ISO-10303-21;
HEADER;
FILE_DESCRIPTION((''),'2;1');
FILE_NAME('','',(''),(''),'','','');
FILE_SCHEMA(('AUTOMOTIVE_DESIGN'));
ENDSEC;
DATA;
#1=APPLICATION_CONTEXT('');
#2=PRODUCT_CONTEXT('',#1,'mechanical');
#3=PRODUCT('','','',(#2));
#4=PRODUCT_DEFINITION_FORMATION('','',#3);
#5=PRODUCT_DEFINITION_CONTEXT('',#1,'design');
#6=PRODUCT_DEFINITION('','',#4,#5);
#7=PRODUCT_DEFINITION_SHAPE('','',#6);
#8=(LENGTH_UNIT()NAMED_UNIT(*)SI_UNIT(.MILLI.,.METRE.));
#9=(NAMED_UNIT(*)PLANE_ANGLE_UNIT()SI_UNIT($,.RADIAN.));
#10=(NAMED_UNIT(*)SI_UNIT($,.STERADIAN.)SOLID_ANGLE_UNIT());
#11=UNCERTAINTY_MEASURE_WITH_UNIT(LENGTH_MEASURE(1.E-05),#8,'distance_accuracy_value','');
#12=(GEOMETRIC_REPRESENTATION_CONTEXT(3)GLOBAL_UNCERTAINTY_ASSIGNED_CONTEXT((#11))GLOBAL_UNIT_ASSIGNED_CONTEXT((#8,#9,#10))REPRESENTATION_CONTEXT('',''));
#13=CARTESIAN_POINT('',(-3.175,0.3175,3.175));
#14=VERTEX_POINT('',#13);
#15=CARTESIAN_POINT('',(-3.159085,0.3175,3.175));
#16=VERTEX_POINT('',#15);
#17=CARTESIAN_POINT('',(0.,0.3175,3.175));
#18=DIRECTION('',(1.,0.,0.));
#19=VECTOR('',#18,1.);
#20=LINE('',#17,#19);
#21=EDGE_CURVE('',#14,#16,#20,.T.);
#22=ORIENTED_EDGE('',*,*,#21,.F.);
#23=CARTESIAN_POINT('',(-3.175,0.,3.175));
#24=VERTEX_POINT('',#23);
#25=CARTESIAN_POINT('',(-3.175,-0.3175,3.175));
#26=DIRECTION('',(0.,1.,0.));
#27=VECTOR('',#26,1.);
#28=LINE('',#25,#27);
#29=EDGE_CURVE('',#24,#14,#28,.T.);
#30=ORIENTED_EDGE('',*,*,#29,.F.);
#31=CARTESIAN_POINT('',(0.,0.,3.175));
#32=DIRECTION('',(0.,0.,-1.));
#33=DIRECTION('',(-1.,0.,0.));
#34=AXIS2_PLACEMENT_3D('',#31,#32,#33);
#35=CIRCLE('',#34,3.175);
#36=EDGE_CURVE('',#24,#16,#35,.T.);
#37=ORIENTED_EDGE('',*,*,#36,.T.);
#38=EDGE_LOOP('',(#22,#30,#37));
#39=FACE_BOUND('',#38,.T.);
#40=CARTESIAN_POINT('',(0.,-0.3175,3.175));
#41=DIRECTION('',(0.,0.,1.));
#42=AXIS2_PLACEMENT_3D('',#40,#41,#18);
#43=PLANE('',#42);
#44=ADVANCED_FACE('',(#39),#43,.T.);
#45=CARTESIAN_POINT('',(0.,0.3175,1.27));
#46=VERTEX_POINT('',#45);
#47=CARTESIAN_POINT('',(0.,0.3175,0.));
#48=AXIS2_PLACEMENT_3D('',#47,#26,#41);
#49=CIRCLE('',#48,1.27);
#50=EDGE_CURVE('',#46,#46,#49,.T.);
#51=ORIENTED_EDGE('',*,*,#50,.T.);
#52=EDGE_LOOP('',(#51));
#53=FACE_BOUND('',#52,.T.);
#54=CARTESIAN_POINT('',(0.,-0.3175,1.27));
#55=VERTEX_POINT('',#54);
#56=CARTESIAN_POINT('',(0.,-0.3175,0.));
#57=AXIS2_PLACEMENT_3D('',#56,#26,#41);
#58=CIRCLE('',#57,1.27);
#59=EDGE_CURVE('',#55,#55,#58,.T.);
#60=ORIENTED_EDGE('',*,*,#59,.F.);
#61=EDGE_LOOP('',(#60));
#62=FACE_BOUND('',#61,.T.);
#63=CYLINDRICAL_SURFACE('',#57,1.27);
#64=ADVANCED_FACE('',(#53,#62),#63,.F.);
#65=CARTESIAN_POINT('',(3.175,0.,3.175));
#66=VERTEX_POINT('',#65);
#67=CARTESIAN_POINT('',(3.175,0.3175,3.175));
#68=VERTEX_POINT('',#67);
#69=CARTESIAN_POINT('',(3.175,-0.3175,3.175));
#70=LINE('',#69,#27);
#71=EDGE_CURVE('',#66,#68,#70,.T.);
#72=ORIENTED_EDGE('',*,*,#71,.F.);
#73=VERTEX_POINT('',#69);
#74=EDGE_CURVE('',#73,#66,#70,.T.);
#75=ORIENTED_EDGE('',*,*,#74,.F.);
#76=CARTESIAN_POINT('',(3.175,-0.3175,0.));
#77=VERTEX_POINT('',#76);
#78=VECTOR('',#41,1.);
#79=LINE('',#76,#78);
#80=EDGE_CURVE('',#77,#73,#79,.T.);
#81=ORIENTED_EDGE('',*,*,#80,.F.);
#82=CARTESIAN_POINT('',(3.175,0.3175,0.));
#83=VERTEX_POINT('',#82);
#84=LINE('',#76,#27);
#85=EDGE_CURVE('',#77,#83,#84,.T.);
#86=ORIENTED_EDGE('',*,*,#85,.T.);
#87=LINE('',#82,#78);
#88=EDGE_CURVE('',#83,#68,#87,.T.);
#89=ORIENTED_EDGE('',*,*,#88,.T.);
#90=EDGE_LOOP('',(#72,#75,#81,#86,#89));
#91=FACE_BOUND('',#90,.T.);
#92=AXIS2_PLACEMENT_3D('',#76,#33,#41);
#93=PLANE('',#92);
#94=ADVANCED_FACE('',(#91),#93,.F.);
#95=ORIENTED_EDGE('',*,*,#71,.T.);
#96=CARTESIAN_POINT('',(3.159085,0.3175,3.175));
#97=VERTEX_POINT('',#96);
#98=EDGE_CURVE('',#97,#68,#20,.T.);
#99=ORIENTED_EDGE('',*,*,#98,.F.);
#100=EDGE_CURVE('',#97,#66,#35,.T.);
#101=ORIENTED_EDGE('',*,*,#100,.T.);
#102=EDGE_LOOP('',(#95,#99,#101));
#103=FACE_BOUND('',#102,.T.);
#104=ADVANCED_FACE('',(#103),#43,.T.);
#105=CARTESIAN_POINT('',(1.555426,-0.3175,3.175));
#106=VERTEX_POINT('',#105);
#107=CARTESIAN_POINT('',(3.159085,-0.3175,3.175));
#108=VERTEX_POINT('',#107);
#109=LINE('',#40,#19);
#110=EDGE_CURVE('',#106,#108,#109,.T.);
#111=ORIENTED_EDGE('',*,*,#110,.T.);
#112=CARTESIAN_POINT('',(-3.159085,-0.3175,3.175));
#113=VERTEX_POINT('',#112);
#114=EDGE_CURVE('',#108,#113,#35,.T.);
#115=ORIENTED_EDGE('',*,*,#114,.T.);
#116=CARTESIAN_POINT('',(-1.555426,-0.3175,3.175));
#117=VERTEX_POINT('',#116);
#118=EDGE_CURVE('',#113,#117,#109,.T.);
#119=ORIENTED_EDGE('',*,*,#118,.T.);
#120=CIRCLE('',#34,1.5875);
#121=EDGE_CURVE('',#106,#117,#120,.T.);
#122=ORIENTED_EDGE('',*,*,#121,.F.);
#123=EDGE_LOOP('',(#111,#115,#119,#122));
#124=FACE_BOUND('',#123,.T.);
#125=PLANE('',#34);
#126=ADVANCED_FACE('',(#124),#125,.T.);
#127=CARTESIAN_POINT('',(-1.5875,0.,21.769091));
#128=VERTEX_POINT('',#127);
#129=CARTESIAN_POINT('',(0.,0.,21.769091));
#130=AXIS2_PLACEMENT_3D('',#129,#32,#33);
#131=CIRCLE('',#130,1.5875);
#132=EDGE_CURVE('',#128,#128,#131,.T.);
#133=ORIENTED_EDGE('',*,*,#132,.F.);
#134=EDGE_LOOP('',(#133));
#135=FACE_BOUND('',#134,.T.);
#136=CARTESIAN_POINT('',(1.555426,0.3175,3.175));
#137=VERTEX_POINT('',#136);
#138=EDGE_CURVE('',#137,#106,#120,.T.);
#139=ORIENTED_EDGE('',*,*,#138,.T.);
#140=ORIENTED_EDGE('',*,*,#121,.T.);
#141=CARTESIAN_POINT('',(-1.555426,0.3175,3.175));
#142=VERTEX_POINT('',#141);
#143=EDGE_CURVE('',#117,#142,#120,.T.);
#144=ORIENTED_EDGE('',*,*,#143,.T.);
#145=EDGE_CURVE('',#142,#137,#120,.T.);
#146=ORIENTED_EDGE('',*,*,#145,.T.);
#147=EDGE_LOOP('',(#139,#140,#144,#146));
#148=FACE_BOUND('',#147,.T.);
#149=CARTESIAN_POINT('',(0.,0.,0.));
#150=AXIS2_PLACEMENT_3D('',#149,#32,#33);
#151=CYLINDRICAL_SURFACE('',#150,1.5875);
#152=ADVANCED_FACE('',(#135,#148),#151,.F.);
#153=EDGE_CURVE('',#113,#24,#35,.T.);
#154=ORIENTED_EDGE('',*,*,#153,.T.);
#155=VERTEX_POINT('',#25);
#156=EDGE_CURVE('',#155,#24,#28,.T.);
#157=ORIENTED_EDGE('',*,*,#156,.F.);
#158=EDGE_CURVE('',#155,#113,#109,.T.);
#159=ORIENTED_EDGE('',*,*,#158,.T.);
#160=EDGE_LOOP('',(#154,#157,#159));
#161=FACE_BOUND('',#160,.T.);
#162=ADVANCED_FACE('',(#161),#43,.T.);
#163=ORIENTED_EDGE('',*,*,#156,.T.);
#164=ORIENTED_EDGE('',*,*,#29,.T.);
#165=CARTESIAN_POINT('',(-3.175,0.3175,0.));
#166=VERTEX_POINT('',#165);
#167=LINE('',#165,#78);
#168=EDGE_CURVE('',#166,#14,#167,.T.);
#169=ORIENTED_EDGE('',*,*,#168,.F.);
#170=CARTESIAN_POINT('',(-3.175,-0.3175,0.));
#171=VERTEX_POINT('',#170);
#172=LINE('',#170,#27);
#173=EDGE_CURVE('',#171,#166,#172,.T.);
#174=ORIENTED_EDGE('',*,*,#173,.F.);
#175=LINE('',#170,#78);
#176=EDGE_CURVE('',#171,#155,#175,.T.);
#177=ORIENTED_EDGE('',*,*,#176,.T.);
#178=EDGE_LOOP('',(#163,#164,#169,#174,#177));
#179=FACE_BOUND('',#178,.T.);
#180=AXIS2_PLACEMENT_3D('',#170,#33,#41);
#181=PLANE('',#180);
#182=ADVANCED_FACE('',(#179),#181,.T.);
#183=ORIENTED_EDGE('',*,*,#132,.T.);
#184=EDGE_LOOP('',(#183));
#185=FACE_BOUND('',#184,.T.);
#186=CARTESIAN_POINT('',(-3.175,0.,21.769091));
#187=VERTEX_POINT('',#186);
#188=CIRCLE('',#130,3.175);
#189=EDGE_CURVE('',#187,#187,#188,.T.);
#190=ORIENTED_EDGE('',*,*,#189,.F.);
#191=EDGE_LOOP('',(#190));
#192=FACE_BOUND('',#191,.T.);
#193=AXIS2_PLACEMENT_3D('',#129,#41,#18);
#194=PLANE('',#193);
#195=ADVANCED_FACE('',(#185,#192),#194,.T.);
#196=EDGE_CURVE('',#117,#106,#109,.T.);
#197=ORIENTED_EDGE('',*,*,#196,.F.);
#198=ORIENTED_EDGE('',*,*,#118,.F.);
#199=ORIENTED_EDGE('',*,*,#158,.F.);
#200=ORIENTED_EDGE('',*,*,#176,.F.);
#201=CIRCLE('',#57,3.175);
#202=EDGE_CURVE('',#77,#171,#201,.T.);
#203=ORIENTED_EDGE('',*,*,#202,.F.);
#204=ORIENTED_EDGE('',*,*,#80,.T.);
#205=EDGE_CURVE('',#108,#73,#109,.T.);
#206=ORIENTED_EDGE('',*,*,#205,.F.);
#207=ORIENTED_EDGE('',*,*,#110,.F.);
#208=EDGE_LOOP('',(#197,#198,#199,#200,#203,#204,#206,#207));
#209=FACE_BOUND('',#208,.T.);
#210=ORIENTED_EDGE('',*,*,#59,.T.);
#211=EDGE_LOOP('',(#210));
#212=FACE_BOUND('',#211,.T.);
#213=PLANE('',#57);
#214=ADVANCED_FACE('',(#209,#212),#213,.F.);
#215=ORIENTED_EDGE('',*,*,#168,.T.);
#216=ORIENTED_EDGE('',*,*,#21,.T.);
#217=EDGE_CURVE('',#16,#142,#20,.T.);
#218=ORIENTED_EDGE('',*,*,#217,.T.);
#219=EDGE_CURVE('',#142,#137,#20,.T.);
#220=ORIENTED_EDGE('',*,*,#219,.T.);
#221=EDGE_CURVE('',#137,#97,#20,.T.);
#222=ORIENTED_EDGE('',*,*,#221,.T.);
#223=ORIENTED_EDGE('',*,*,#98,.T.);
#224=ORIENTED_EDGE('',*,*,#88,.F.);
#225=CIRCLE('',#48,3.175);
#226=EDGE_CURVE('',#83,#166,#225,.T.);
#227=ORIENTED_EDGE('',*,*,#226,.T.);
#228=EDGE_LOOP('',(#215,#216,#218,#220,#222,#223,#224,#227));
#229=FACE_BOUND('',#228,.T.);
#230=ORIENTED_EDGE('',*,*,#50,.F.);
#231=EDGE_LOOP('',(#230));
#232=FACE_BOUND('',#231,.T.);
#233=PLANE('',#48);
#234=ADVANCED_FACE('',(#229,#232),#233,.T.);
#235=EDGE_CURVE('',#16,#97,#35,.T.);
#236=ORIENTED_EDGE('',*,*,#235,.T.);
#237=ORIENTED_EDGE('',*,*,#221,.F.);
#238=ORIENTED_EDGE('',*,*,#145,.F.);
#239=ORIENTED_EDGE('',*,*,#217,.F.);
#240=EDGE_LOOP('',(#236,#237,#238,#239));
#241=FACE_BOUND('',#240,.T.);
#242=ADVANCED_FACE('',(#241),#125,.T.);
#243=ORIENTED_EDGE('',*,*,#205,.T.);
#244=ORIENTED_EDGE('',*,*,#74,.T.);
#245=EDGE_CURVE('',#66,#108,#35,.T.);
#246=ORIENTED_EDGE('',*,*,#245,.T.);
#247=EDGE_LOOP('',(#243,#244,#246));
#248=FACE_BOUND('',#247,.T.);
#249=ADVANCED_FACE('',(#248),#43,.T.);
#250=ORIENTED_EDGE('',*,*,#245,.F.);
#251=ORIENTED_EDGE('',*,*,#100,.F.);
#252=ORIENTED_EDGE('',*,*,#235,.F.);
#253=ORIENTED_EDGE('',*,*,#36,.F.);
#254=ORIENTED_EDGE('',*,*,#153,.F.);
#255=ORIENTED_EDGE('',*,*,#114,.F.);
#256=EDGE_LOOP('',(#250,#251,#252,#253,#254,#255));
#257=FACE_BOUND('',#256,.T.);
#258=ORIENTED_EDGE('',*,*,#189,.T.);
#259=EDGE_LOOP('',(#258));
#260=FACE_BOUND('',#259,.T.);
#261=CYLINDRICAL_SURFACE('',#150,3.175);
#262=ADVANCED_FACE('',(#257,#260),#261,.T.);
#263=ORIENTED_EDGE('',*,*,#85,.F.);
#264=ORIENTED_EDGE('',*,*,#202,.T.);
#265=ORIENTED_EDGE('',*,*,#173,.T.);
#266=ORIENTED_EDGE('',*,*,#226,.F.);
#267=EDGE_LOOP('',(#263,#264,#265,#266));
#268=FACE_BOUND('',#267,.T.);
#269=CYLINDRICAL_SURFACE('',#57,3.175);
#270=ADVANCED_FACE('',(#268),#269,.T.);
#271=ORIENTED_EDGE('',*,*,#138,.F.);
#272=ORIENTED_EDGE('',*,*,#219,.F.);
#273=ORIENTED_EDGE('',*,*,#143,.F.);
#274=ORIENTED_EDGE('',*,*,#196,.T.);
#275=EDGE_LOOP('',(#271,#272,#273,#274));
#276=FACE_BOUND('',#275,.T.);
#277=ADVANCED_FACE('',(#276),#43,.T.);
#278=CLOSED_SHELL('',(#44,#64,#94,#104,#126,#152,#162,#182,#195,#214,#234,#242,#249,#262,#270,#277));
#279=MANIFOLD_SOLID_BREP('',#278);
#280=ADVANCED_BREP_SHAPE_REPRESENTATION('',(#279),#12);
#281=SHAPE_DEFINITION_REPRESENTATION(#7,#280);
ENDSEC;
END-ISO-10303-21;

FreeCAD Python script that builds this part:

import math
import FreeCAD as App
import Part
import Sketcher
Q = App.Units.Quantity


def add_polygon(sketch, points):
    """Adds a closed chain of lines whose ends are joined by coincident constraints."""
    first, n = sketch.GeometryCount, len(points)
    for a, b in zip(points, points[1:] + points[:1]):
        sketch.addGeometry(Part.LineSegment(App.Vector(*a, 0), App.Vector(*b, 0)), False)
    for i in range(n):
        sketch.addConstraint(Sketcher.Constraint("Coincident", first + i, 2, first + (i + 1) % n, 1))

doc = App.newDocument("Part")
body = doc.addObject("PartDesign::Body", "Body")

sketch1 = doc.addObject("Sketcher::SketchObject", "Sketch")
body.addObject(sketch1)
sketch1.AttachmentSupport = (doc.XZ_Plane, [""])
sketch1.MapMode = "FlatFace"
add_polygon(sketch1, [(1.5875, 3.175), (1.5875, 21.769091), (3.175, 21.769091), (3.175, 3.175)])
sketch1.addConstraint([
    Sketcher.Constraint("Vertical", 0),
    Sketcher.Constraint("Horizontal", 1),
    Sketcher.Constraint("Vertical", 2),
    Sketcher.Constraint("Horizontal", 3),
    Sketcher.Constraint("DistanceX", 1, 1, 1, 2, Q("0.0625 in")),
    Sketcher.Constraint("DistanceX", -1, 1, 0, 2, Q("0.0625 in")),
    Sketcher.Constraint("DistanceY", -1, 1, 2, 2, Q("0.125 in")),
    Sketcher.Constraint("DistanceY", 0, 1, 0, 2, Q("18.594091 mm")),
])
revolution = doc.addObject("PartDesign::Revolution", "Revolution")
body.addObject(revolution)
revolution.Profile = sketch1
revolution.ReferenceAxis = (sketch1, ["V_Axis"])
revolution.Angle = 360

sketch2 = doc.addObject("Sketcher::SketchObject", "Sketch001")
body.addObject(sketch2)
sketch2.AttachmentSupport = (doc.XZ_Plane, [""])
sketch2.MapMode = "FlatFace"
sketch2.addGeometry([
    Part.ArcOfCircle(Part.Circle(App.Vector(0, 0, 0), App.Vector(0, 0, 1), 3.175), math.radians(-60), math.radians(0)),
    Part.ArcOfCircle(Part.Circle(App.Vector(0, 0, 0), App.Vector(0, 0, 1), 3.175), math.radians(-90), math.radians(-60)),
    Part.ArcOfCircle(Part.Circle(App.Vector(0, 0, 0), App.Vector(0, 0, 1), 3.175), math.radians(-120), math.radians(-90)),
    Part.ArcOfCircle(Part.Circle(App.Vector(0, 0, 0), App.Vector(0, 0, 1), 3.175), math.radians(180), math.radians(240)),
    Part.LineSegment(App.Vector(-3.175, 0, 0), App.Vector(-3.175, 3.175, 0)),
    Part.LineSegment(App.Vector(-3.175, 3.175, 0), App.Vector(3.175, 3.175, 0)),
    Part.LineSegment(App.Vector(3.175, 3.175, 0), App.Vector(3.175, 0, 0)),
    Part.ArcOfCircle(Part.Circle(App.Vector(0, 0, 0), App.Vector(0, 0, 1), 1.27), math.radians(-90), math.radians(0)),
    Part.ArcOfCircle(Part.Circle(App.Vector(0, 0, 0), App.Vector(0, 0, 1), 1.27), math.radians(0), math.radians(90)),
    Part.ArcOfCircle(Part.Circle(App.Vector(0, 0, 0), App.Vector(0, 0, 1), 1.27), math.radians(90), math.radians(270)),
], False)
sketch2.addConstraint([
    Sketcher.Constraint("Tangent", 0, 1, 1, 2),
    Sketcher.Constraint("Tangent", 1, 1, 2, 2),
    Sketcher.Constraint("Tangent", 2, 1, 3, 2),
    Sketcher.Constraint("Tangent", 3, 1, 4, 1),
    Sketcher.Constraint("Coincident", 4, 2, 5, 1),
    Sketcher.Constraint("Coincident", 5, 2, 6, 1),
    Sketcher.Constraint("Tangent", 6, 2, 0, 2),
    Sketcher.Constraint("Tangent", 7, 2, 8, 1),
    Sketcher.Constraint("Tangent", 8, 2, 9, 1),
    Sketcher.Constraint("Tangent", 9, 2, 7, 1),
    Sketcher.Constraint("Vertical", 4),
    Sketcher.Constraint("Horizontal", 5),
    Sketcher.Constraint("Vertical", 6),
    Sketcher.Constraint("Coincident", 0, 3, -1, 1),
    Sketcher.Constraint("Coincident", 2, 3, -1, 1),
    Sketcher.Constraint("Coincident", 7, 3, -1, 1),
    Sketcher.Constraint("Equal", 2, 3),
    Sketcher.Constraint("PointOnObject", 1, 1, -2),
    Sketcher.Constraint("PointOnObject", 7, 2, -1),
    Sketcher.Constraint("PointOnObject", 8, 2, -2),
    Sketcher.Constraint("PointOnObject", 9, 2, -2),
    Sketcher.Constraint("Horizontal", 0, 1, 2, 1),
    Sketcher.Constraint("Radius", 7, Q("0.05 in")),
    Sketcher.Constraint("Radius", 0, Q("0.125 in")),
    Sketcher.Constraint("DistanceY", 4, 1, 4, 2, Q("0.125 in")),
    Sketcher.Constraint("DistanceX", -1, 1, 0, 1, Q("0.0625 in")),
])
pad1 = doc.addObject("PartDesign::Pad", "Pad")
body.addObject(pad1)
pad1.Profile = sketch2
pad1.Type = "TwoLengths"
pad1.Length = Q("0.0125 in")
pad1.Length2 = Q("0.0125 in")
pad1.Reversed = True

doc.recompute()
